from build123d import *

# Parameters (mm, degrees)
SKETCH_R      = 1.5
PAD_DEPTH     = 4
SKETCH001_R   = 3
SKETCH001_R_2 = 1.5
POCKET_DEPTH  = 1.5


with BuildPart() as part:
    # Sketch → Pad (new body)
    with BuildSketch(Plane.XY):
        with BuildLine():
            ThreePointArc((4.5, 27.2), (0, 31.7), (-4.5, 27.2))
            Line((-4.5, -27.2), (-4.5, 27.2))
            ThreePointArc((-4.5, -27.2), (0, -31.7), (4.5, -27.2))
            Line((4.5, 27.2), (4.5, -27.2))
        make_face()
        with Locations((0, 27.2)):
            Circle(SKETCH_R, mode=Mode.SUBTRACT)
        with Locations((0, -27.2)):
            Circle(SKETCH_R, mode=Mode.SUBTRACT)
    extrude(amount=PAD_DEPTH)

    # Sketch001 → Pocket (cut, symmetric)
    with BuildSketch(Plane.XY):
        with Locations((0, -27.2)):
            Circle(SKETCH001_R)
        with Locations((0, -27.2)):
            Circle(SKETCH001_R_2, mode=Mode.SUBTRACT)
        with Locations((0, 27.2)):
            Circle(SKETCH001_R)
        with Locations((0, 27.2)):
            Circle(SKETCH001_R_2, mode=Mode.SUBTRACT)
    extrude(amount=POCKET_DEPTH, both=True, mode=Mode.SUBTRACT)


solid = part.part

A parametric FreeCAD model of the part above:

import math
import FreeCAD as App
import Part
import Sketcher
Q = App.Units.Quantity

doc = App.newDocument("Part")
body = doc.addObject("PartDesign::Body", "Body")

sketch1 = doc.addObject("Sketcher::SketchObject", "Sketch")
body.addObject(sketch1)
sketch1.AttachmentSupport = (doc.XY_Plane, [""])
sketch1.MapMode = "FlatFace"
sketch1.addGeometry([
    Part.ArcOfCircle(Part.Circle(App.Vector(0, 27.2, 0), App.Vector(0, 0, 1), 4.5), math.radians(0), math.radians(180)),
    Part.LineSegment(App.Vector(-4.5, 27.2, 0), App.Vector(-4.5, -27.2, 0)),
    Part.ArcOfCircle(Part.Circle(App.Vector(0, -27.2, 0), App.Vector(0, 0, 1), 4.5), math.radians(180), math.radians(360)),
    Part.LineSegment(App.Vector(4.5, -27.2, 0), App.Vector(4.5, 27.2, 0)),
    Part.Circle(App.Vector(0, -27.2, 0), App.Vector(0, 0, 1), 1.5),
    Part.Circle(App.Vector(0, 27.2, 0), App.Vector(0, 0, 1), 1.5),
], False)
sketch1.addConstraint([
    Sketcher.Constraint("Tangent", 0, 2, 1, 1),
    Sketcher.Constraint("Tangent", 1, 2, 2, 1),
    Sketcher.Constraint("Tangent", 2, 2, 3, 1),
    Sketcher.Constraint("Tangent", 3, 2, 0, 1),
    Sketcher.Constraint("Vertical", 1),
    Sketcher.Constraint("Vertical", 3),
    Sketcher.Constraint("Coincident", 4, 3, 2, 3),
    Sketcher.Constraint("Coincident", 5, 3, 0, 3),
    Sketcher.Constraint("Equal", 4, 5),
    Sketcher.Constraint("Symmetric", 0, 3, 2, 3, -1, 1),
    Sketcher.Constraint("Diameter", 4, Q("3 mm")),
    Sketcher.Constraint("Radius", 0, Q("4.5 mm")),
    Sketcher.Constraint("DistanceY", 1, 2, 1, 1, Q("54.4 mm")),
])
pad1 = doc.addObject("PartDesign::Pad", "Pad")
body.addObject(pad1)
pad1.Profile = sketch1
pad1.Length = 4

sketch2 = doc.addObject("Sketcher::SketchObject", "Sketch001")
body.addObject(sketch2)
sketch2.AttachmentSupport = (doc.XY_Plane, [""])
sketch2.MapMode = "FlatFace"
sketch2.addGeometry([
    Part.Circle(App.Vector(0, -27.2, 0), App.Vector(0, 0, 1), 3),
    Part.Circle(App.Vector(0, -27.2, 0), App.Vector(0, 0, 1), 1.5),
    Part.Circle(App.Vector(0, 27.2, 0), App.Vector(0, 0, 1), 3),
    Part.Circle(App.Vector(0, 27.2, 0), App.Vector(0, 0, 1), 1.5),
], False)
sketch2.addConstraint([
    Sketcher.Constraint("Coincident", 1, 3, 0, 3),
    Sketcher.Constraint("Coincident", 3, 3, 2, 3),
    Sketcher.Constraint("Equal", 0, 2),
    Sketcher.Constraint("Equal", 1, 3),
    Sketcher.Constraint("Symmetric", 0, 3, 2, 3, -1, 1),
    Sketcher.Constraint("PointOnObject", 0, 3, -2),
    Sketcher.Constraint("Diameter", 0, Q("6 mm")),
    Sketcher.Constraint("Diameter", 1, Q("3 mm")),
    Sketcher.Constraint("DistanceY", 0, 3, -1, 1, Q("27.2 mm")),
])
pocket1 = doc.addObject("PartDesign::Pocket", "Pocket")
body.addObject(pocket1)
pocket1.Profile = sketch2
pocket1.Length = 3
pocket1.Midplane = True

doc.recompute()
